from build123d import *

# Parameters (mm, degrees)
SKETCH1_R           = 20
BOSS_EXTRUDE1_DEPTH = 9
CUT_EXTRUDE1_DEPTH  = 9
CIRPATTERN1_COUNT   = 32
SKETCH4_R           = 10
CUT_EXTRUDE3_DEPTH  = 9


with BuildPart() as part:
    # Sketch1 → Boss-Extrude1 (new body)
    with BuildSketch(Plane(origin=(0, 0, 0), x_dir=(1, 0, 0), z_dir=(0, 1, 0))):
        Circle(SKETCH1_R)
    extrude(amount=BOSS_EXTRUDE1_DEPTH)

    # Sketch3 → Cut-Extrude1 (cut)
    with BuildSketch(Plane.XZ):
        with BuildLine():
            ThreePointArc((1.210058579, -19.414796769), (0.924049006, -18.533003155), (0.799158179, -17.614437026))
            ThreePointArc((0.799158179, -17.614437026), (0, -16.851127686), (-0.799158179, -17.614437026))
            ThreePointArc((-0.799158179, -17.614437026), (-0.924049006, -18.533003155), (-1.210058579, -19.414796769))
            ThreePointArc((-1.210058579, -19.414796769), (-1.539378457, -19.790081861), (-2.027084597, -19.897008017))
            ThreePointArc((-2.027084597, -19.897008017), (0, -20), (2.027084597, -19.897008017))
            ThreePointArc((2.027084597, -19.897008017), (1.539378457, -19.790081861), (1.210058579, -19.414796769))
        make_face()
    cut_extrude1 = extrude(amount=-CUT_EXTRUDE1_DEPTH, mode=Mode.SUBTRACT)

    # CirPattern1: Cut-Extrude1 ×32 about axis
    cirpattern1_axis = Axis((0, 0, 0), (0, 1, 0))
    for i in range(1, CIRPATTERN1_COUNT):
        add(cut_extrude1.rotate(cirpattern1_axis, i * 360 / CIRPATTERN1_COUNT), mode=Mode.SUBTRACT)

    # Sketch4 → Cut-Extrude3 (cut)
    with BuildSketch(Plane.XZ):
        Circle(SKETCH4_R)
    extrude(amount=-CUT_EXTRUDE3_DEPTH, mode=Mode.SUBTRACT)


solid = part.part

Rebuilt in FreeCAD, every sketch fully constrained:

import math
import FreeCAD as App
import Part
import Sketcher

V = App.Vector

doc = App.newDocument("Part")
body = doc.addObject("PartDesign::Body", "Body")

# Sketch on XZ plane
sketch1 = body.newObject("Sketcher::SketchObject", "Sketch")
sketch1.AttachmentSupport = (doc.getObject("XZ_Plane"), [""])
sketch1.MapMode = "FlatFace"
sketch1.addGeometry(Part.Circle(V(0, 0, 0), V(0, 0, 1), 20), False)
sketch1.addConstraint(Sketcher.Constraint("Coincident", 0, 3, -1, 1))
sketch1.addConstraint(Sketcher.Constraint("Diameter", 0, 40.0))
pad1 = body.newObject("PartDesign::Pad", "Pad")
pad1.Profile = sketch1
pad1.Length = 9
pad1.Reversed = True

# Sketch on XZ plane
sketch2 = body.newObject("Sketcher::SketchObject", "Sketch001")
sketch2.AttachmentSupport = (doc.getObject("XZ_Plane"), [""])
sketch2.MapMode = "FlatFace"
sketch2.addGeometry(Part.ArcOfCircle(Part.Circle(V(6, -17.4, 0), V(0, 0, 1), 5.2), math.radians(-177), math.radians(-157)), False)
sketch2.addGeometry(Part.ArcOfCircle(Part.Circle(V(0, -17.7, 0), V(0, 0, 1), 0.8), math.radians(3), math.radians(177)), False)
sketch2.addGeometry(Part.ArcOfCircle(Part.Circle(V(-6, -17.4, 0), V(0, 0, 1), 5.2), math.radians(-23), math.radians(-3)), False)
sketch2.addGeometry(Part.ArcOfCircle(Part.Circle(V(-1.9, -19.1, 0), V(0, 0, 1), 0.8), math.radians(-96), math.radians(-23)), False)
sketch2.addGeometry(Part.ArcOfCircle(Part.Circle(V(0, 0, 0), V(0, 0, 1), 20), math.radians(-95.82), math.radians(-84.18)), False)
sketch2.addGeometry(Part.ArcOfCircle(Part.Circle(V(1.9, -19.1, 0), V(0, 0, 1), 0.8), math.radians(-157), math.radians(-84)), False)
sketch2.addConstraint(Sketcher.Constraint("Tangent", 0, 1, 1, 1))
sketch2.addConstraint(Sketcher.Constraint("Tangent", 1, 2, 2, 2))
sketch2.addConstraint(Sketcher.Constraint("Tangent", 2, 1, 3, 2))
sketch2.addConstraint(Sketcher.Constraint("Tangent", 3, 1, 4, 1))
sketch2.addConstraint(Sketcher.Constraint("Tangent", 4, 2, 5, 2))
sketch2.addConstraint(Sketcher.Constraint("Tangent", 5, 1, 0, 2))
sketch2.addConstraint(Sketcher.Constraint("Coincident", 4, 3, -1, 1))
sketch2.addConstraint(Sketcher.Constraint("Equal", 0, 2))
sketch2.addConstraint(Sketcher.Constraint("Equal", 1, 3))
sketch2.addConstraint(Sketcher.Constraint("Equal", 3, 5))
sketch2.addConstraint(Sketcher.Constraint("Symmetric", 0, 3, 2, 3, -2))
sketch2.addConstraint(Sketcher.Constraint("Radius", 4, 20.0))
sketch2.addConstraint(Sketcher.Constraint("Radius", 0, 5.2))
sketch2.addConstraint(Sketcher.Constraint("Radius", 1, 0.8))
sketch2.addConstraint(Sketcher.Constraint("DistanceY", 3, 3, 1, 3, 1.45))
sketch2.addConstraint(Sketcher.Constraint("DistanceX", 3, 3, -1, 1, 1.946001))
pocket1 = body.newObject("PartDesign::Pocket", "Pocket")
pocket1.Profile = sketch2
pocket1.Length = 9
doc.recompute()

polarpattern = body.newObject("PartDesign::PolarPattern", "PolarPattern")
polarpattern.Originals = [pocket1]
polarpattern.Axis = (doc.getObject("Y_Axis"), [""])
polarpattern.Angle = 360
polarpattern.Occurrences = 32
body.Tip = polarpattern

# Sketch on XZ plane
sketch3 = body.newObject("Sketcher::SketchObject", "Sketch002")
sketch3.AttachmentSupport = (doc.getObject("XZ_Plane"), [""])
sketch3.MapMode = "FlatFace"
sketch3.addGeometry(Part.Circle(V(0, 0, 0), V(0, 0, 1), 10), False)
sketch3.addConstraint(Sketcher.Constraint("Coincident", 0, 3, -1, 1))
sketch3.addConstraint(Sketcher.Constraint("Diameter", 0, 20.0))
pocket2 = body.newObject("PartDesign::Pocket", "Pocket001")
pocket2.Profile = sketch3
pocket2.Length = 9

doc.recompute()
